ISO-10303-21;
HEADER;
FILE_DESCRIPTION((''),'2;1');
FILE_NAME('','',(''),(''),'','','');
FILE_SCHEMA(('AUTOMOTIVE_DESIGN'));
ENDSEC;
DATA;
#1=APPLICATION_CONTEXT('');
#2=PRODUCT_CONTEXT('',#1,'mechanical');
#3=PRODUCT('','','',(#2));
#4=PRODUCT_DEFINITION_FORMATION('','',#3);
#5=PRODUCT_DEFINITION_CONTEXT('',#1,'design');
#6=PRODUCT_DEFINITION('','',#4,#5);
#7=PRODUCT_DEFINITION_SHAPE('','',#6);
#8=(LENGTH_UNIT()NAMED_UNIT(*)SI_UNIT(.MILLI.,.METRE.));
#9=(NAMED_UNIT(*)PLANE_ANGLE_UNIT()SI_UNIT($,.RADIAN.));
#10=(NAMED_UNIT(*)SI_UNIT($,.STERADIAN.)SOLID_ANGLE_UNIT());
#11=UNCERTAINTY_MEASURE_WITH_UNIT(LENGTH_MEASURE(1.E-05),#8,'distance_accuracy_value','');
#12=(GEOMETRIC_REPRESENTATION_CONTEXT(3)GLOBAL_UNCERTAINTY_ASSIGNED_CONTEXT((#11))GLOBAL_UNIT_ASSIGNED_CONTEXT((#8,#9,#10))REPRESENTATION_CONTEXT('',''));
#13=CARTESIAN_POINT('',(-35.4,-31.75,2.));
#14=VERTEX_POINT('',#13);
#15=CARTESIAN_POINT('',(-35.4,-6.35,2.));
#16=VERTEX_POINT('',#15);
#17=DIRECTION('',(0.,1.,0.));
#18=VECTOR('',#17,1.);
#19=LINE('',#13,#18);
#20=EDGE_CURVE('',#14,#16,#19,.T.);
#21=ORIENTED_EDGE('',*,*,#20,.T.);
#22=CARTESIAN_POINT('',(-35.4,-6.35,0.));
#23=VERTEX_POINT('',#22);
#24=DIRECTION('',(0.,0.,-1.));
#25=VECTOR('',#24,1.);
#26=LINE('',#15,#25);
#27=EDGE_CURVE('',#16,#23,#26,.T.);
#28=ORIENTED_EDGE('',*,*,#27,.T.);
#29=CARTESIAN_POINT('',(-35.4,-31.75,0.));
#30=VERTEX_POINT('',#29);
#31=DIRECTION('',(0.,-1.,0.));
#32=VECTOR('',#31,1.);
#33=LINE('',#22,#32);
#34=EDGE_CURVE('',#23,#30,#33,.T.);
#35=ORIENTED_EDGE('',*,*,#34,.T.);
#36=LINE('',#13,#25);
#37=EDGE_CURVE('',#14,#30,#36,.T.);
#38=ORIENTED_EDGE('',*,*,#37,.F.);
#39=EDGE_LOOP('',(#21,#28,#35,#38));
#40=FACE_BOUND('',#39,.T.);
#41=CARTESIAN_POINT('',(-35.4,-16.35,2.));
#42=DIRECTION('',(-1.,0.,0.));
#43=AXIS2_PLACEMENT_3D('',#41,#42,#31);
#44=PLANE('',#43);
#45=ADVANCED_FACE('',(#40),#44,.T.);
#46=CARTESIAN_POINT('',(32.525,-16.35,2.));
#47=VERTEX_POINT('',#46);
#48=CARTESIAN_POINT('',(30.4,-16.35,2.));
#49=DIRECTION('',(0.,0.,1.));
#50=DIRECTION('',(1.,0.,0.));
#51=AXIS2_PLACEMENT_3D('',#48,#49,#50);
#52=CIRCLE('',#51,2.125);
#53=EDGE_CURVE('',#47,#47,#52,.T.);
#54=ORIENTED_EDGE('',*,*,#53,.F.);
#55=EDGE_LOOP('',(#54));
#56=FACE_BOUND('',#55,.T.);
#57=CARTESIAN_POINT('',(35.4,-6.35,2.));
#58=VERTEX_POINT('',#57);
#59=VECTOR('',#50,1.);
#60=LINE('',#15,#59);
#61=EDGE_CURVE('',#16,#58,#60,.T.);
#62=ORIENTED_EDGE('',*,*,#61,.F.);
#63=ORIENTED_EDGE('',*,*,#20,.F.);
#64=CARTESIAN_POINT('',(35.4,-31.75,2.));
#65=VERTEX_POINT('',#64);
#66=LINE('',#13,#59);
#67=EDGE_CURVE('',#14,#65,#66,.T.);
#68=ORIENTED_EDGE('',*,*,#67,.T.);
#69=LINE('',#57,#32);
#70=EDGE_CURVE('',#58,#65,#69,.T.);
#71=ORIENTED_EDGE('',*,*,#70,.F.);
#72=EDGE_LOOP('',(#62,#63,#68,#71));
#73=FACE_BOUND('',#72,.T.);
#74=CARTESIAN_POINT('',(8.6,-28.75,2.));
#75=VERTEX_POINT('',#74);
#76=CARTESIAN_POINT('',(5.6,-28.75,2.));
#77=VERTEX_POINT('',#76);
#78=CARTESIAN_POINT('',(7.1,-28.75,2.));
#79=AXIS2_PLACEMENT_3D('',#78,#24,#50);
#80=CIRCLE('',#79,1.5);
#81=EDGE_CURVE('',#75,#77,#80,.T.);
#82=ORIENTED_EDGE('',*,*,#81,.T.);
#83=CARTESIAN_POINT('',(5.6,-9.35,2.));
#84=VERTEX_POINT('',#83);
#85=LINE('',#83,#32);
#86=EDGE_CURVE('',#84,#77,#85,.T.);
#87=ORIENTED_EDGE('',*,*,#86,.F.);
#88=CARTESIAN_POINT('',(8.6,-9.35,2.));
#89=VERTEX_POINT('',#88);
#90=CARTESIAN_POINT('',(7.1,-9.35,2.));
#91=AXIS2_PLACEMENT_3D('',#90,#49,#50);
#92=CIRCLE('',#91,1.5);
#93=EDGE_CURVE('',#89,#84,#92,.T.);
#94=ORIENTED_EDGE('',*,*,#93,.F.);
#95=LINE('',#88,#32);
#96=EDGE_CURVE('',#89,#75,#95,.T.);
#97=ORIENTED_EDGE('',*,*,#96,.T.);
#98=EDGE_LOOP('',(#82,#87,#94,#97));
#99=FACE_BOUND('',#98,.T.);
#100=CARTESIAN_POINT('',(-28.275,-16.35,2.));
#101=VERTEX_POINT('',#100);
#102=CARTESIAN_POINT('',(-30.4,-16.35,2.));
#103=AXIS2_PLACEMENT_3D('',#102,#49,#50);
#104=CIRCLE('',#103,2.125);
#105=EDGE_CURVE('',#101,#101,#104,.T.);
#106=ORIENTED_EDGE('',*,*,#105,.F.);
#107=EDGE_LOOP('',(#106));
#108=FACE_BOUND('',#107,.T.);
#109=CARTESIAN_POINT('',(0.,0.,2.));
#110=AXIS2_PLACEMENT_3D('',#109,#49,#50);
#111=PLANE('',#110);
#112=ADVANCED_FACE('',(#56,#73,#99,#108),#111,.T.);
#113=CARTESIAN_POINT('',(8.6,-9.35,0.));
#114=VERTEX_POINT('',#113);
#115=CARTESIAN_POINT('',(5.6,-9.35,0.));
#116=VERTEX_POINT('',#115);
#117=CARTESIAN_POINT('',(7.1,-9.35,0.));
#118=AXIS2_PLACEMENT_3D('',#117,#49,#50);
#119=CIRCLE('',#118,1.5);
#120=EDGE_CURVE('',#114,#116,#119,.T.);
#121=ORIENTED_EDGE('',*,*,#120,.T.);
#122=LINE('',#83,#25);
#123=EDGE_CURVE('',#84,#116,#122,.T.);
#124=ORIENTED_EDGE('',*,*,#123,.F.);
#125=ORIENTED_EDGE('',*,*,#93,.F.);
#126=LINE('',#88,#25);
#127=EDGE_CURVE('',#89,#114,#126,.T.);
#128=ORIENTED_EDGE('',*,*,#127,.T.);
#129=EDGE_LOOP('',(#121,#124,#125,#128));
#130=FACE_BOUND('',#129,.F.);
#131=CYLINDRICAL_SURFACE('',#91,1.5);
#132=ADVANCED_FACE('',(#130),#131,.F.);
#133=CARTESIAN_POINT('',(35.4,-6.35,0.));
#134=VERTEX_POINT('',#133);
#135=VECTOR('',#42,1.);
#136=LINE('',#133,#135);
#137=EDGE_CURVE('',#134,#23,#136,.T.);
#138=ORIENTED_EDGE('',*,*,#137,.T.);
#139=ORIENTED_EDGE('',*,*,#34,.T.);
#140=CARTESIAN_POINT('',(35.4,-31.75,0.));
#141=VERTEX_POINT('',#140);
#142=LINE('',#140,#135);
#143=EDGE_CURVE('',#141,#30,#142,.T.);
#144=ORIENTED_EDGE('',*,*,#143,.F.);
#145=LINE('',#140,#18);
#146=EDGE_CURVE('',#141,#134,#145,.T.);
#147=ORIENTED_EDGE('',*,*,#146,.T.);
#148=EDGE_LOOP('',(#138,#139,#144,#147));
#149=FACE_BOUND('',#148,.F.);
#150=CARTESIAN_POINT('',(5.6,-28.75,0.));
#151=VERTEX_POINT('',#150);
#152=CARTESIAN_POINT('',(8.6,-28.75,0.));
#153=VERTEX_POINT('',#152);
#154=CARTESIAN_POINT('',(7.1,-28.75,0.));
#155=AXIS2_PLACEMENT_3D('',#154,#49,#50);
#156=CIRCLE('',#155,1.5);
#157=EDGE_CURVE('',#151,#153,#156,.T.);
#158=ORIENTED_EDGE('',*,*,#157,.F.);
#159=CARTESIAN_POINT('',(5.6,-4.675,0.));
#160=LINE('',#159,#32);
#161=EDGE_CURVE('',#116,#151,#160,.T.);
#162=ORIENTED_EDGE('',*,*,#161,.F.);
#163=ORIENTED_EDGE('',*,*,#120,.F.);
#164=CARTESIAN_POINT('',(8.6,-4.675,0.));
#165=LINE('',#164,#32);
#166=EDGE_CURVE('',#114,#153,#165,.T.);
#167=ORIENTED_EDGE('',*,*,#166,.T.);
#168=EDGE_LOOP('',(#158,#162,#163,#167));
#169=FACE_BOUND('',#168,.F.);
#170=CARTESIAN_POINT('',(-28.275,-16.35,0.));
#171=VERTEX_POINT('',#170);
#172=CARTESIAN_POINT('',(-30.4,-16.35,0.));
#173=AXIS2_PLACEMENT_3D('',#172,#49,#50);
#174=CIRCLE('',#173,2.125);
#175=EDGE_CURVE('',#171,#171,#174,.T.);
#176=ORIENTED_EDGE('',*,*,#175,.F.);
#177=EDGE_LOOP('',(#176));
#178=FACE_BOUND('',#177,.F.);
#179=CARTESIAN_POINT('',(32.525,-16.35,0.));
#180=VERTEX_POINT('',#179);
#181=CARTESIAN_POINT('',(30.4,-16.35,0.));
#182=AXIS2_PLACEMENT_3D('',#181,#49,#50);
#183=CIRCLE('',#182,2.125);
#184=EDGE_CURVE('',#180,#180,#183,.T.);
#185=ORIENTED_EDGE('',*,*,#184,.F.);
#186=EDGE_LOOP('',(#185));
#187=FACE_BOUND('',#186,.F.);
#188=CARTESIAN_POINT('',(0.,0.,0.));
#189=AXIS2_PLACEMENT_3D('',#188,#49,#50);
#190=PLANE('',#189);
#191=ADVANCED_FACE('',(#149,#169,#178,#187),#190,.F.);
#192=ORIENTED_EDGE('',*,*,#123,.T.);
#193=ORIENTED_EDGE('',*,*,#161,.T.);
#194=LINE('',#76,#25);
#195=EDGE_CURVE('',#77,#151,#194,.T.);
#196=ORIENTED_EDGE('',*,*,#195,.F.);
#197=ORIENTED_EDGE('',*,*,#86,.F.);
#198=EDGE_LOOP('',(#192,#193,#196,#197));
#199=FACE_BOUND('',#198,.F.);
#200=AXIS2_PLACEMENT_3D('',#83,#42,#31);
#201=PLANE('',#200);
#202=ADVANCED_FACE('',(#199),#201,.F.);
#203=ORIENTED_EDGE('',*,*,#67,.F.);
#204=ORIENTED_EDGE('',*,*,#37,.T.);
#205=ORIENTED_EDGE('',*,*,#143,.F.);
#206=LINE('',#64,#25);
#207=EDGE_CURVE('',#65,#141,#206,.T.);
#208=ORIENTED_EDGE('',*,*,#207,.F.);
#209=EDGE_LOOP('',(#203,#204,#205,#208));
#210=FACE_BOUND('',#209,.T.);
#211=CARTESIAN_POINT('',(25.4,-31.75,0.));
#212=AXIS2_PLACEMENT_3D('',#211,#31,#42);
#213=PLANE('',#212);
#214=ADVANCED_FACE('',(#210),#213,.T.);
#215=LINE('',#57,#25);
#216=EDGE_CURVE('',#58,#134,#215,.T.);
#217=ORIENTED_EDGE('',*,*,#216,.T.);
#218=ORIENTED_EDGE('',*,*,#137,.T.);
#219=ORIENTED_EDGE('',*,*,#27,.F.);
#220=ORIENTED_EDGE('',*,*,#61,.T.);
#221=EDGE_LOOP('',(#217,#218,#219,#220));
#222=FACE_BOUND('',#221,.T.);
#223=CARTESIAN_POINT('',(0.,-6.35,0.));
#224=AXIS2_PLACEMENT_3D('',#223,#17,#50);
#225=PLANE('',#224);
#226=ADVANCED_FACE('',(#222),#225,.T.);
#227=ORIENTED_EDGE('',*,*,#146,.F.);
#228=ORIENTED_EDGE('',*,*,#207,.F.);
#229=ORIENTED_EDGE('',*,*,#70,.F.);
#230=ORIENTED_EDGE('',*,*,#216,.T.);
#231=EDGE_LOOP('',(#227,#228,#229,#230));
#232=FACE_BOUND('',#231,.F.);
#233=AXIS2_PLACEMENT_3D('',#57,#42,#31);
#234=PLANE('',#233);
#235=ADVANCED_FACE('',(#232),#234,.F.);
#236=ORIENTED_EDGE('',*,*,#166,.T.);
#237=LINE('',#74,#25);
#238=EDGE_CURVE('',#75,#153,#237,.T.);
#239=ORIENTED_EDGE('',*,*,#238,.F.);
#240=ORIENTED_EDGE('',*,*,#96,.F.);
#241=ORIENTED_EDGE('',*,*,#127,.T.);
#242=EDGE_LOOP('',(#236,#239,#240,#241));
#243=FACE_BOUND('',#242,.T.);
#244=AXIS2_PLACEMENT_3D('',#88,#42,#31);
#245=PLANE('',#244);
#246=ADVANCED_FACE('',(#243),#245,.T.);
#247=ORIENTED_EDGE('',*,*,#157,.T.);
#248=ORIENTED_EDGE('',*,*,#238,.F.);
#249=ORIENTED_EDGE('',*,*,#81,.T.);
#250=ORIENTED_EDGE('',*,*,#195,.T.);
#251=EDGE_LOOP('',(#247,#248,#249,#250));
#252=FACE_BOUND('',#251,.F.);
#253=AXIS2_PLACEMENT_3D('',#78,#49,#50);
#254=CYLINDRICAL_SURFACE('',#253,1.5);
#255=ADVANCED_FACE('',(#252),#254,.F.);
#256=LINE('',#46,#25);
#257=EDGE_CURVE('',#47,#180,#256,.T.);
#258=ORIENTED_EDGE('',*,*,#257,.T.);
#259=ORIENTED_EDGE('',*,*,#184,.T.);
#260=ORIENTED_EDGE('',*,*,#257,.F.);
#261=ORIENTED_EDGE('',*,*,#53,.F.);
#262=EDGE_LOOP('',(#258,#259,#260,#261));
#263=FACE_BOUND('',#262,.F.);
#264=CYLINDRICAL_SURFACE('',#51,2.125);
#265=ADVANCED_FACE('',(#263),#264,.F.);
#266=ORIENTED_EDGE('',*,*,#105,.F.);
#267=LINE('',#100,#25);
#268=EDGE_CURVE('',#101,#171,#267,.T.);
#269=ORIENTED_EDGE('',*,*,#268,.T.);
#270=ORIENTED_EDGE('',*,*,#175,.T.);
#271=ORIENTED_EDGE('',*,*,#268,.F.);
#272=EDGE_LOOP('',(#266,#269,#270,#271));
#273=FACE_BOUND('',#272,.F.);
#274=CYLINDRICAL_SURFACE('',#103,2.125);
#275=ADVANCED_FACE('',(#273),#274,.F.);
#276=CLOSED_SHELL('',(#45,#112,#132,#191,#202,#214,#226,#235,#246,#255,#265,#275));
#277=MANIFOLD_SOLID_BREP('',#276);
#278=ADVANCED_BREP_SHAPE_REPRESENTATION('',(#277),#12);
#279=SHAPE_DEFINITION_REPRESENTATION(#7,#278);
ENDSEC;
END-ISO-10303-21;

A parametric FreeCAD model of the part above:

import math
import FreeCAD as App
import Part
import Sketcher
from FreeCAD import Vector
Q = App.Units.Quantity


def add_polygon(sketch, points):
    """Adds a closed chain of lines whose ends are joined by coincident constraints."""
    first, n = sketch.GeometryCount, len(points)
    for a, b in zip(points, points[1:] + points[:1]):
        sketch.addGeometry(Part.LineSegment(App.Vector(*a, 0), App.Vector(*b, 0)), False)
    for i in range(n):
        sketch.addConstraint(Sketcher.Constraint("Coincident", first + i, 2, first + (i + 1) % n, 1))

doc = App.newDocument("Part")
body = doc.addObject("PartDesign::Body", "Body")

sketch1 = body.newObject("Sketcher::SketchObject", "Sketch")
sketch1.AttachmentSupport = (doc.getObject("XY_Plane"), [""])
sketch1.MapMode = "FlatFace"
add_polygon(sketch1, [(25, -6), (-25, -6), (-25, -32), (25, -32)])
sketch1.addConstraint([
    Sketcher.Constraint("Horizontal", 0),
    Sketcher.Constraint("Vertical", 1),
    Sketcher.Constraint("Horizontal", 2),
    Sketcher.Constraint("Vertical", 3),
    Sketcher.Constraint("DistanceX", 0, 2, 0, 1, Q("2 in")),
    Sketcher.Constraint("DistanceY", 1, 2, 1, 1, Q("1 in")),
    Sketcher.Constraint("DistanceX", 0, 2, -1, 1, Q("1 in")),
    Sketcher.Constraint("DistanceY", 0, 2, -1, 1, Q("0.25 in")),
])
pad1 = body.newObject("PartDesign::Pad", "Pad")
pad1.Profile = sketch1
pad1.Length = 2

sketch2 = body.newObject("Sketcher::SketchObject", "Sketch001")
sketch2.AttachmentSupport = (doc.getObject("XY_Plane"), [""])
sketch2.MapMode = "FlatFace"
sketch2.AttachmentOffset = App.Placement(Vector(0, 0, 2), App.Rotation())
sketch2.addGeometry([
    Part.LineSegment(Vector(8.6, -28.8, 0), Vector(8.6, -9.3, 0)),
    Part.ArcOfCircle(Part.Circle(Vector(7.1, -9.3, 0), Vector(0, 0, 1), 1.5), math.radians(0), math.radians(180)),
    Part.LineSegment(Vector(5.6, -9.3, 0), Vector(5.6, -28.8, 0)),
    Part.ArcOfCircle(Part.Circle(Vector(7.1, -28.8, 0), Vector(0, 0, 1), 1.5), math.radians(180), math.radians(360)),
], False)
sketch2.addConstraint([
    Sketcher.Constraint("Tangent", 0, 2, 1, 1),
    Sketcher.Constraint("Tangent", 1, 2, 2, 1),
    Sketcher.Constraint("Tangent", 2, 2, 3, 1),
    Sketcher.Constraint("Tangent", 3, 2, 0, 1),
    Sketcher.Constraint("Vertical", 0),
    Sketcher.Constraint("Vertical", 2),
    Sketcher.Constraint("Radius", 1, 1.5),
    Sketcher.Constraint("DistanceY", 0, 1, 0, 2, 19.4),
    Sketcher.Constraint("DistanceY", 1, 3, -1, 1, Q("0.3681 in")),
    Sketcher.Constraint("DistanceX", -1, 1, 1, 3, 7.1),
])
pocket1 = body.newObject("PartDesign::Pocket", "Pocket")
pocket1.Profile = sketch2
pocket1.Length = Q("0.1 in")

sketch3 = body.newObject("Sketcher::SketchObject", "Sketch002")
sketch3.AttachmentSupport = (doc.getObject("XY_Plane"), [""])
sketch3.MapMode = "FlatFace"
sketch3.AttachmentOffset = App.Placement(Vector(0, 0, 2), App.Rotation())
add_polygon(sketch3, [(35.4, -6.3), (25.4, -6.3), (25.4, -31.8), (35.4, -31.8)])
sketch3.addGeometry(Part.Circle(Vector(30.4, -16.4, 0), Vector(0, 0, 1), 2.1), False)
add_polygon(sketch3, [(-25.4, -31.8), (-25.4, -6.3), (-35.4, -6.3), (-35.4, -31.8)])
sketch3.addGeometry(Part.Circle(Vector(-30.4, -16.4, 0), Vector(0, 0, 1), 2.1), False)
sketch3.addConstraint([
    Sketcher.Constraint("Horizontal", 0),
    Sketcher.Constraint("Vertical", 1),
    Sketcher.Constraint("Horizontal", 2),
    Sketcher.Constraint("Vertical", 3),
    Sketcher.Constraint("Vertical", 5),
    Sketcher.Constraint("Horizontal", 6),
    Sketcher.Constraint("Vertical", 7),
    Sketcher.Constraint("Horizontal", 8),
    Sketcher.Constraint("Equal", 4, 9),
    Sketcher.Constraint("Symmetric", 4, 3, 9, 3, -2),
    Sketcher.Constraint("Symmetric", 0, 2, 5, 2, -2),
    Sketcher.Constraint("Symmetric", 2, 2, 7, 2, -2),
    Sketcher.Constraint("DistanceY", 1, 2, 1, 1, Q("1 in")),
    Sketcher.Constraint("DistanceX", -1, 1, 0, 2, Q("1 in")),
    Sketcher.Constraint("Diameter", 4, 4.25),
    Sketcher.Constraint("DistanceX", 0, 2, 0, 1, Q("0.3937 in")),
    Sketcher.Constraint("DistanceY", 4, 3, 0, 2, Q("0.3937 in")),
    Sketcher.Constraint("DistanceY", 0, 2, -1, 1, Q("0.25 in")),
    Sketcher.Constraint("DistanceX", 9, 3, 4, 3, Q("2.3937 in")),
])
pad2 = body.newObject("PartDesign::Pad", "Pad001")
pad2.Profile = sketch3
pad2.Length = 2
pad2.Reversed = True

doc.recompute()
